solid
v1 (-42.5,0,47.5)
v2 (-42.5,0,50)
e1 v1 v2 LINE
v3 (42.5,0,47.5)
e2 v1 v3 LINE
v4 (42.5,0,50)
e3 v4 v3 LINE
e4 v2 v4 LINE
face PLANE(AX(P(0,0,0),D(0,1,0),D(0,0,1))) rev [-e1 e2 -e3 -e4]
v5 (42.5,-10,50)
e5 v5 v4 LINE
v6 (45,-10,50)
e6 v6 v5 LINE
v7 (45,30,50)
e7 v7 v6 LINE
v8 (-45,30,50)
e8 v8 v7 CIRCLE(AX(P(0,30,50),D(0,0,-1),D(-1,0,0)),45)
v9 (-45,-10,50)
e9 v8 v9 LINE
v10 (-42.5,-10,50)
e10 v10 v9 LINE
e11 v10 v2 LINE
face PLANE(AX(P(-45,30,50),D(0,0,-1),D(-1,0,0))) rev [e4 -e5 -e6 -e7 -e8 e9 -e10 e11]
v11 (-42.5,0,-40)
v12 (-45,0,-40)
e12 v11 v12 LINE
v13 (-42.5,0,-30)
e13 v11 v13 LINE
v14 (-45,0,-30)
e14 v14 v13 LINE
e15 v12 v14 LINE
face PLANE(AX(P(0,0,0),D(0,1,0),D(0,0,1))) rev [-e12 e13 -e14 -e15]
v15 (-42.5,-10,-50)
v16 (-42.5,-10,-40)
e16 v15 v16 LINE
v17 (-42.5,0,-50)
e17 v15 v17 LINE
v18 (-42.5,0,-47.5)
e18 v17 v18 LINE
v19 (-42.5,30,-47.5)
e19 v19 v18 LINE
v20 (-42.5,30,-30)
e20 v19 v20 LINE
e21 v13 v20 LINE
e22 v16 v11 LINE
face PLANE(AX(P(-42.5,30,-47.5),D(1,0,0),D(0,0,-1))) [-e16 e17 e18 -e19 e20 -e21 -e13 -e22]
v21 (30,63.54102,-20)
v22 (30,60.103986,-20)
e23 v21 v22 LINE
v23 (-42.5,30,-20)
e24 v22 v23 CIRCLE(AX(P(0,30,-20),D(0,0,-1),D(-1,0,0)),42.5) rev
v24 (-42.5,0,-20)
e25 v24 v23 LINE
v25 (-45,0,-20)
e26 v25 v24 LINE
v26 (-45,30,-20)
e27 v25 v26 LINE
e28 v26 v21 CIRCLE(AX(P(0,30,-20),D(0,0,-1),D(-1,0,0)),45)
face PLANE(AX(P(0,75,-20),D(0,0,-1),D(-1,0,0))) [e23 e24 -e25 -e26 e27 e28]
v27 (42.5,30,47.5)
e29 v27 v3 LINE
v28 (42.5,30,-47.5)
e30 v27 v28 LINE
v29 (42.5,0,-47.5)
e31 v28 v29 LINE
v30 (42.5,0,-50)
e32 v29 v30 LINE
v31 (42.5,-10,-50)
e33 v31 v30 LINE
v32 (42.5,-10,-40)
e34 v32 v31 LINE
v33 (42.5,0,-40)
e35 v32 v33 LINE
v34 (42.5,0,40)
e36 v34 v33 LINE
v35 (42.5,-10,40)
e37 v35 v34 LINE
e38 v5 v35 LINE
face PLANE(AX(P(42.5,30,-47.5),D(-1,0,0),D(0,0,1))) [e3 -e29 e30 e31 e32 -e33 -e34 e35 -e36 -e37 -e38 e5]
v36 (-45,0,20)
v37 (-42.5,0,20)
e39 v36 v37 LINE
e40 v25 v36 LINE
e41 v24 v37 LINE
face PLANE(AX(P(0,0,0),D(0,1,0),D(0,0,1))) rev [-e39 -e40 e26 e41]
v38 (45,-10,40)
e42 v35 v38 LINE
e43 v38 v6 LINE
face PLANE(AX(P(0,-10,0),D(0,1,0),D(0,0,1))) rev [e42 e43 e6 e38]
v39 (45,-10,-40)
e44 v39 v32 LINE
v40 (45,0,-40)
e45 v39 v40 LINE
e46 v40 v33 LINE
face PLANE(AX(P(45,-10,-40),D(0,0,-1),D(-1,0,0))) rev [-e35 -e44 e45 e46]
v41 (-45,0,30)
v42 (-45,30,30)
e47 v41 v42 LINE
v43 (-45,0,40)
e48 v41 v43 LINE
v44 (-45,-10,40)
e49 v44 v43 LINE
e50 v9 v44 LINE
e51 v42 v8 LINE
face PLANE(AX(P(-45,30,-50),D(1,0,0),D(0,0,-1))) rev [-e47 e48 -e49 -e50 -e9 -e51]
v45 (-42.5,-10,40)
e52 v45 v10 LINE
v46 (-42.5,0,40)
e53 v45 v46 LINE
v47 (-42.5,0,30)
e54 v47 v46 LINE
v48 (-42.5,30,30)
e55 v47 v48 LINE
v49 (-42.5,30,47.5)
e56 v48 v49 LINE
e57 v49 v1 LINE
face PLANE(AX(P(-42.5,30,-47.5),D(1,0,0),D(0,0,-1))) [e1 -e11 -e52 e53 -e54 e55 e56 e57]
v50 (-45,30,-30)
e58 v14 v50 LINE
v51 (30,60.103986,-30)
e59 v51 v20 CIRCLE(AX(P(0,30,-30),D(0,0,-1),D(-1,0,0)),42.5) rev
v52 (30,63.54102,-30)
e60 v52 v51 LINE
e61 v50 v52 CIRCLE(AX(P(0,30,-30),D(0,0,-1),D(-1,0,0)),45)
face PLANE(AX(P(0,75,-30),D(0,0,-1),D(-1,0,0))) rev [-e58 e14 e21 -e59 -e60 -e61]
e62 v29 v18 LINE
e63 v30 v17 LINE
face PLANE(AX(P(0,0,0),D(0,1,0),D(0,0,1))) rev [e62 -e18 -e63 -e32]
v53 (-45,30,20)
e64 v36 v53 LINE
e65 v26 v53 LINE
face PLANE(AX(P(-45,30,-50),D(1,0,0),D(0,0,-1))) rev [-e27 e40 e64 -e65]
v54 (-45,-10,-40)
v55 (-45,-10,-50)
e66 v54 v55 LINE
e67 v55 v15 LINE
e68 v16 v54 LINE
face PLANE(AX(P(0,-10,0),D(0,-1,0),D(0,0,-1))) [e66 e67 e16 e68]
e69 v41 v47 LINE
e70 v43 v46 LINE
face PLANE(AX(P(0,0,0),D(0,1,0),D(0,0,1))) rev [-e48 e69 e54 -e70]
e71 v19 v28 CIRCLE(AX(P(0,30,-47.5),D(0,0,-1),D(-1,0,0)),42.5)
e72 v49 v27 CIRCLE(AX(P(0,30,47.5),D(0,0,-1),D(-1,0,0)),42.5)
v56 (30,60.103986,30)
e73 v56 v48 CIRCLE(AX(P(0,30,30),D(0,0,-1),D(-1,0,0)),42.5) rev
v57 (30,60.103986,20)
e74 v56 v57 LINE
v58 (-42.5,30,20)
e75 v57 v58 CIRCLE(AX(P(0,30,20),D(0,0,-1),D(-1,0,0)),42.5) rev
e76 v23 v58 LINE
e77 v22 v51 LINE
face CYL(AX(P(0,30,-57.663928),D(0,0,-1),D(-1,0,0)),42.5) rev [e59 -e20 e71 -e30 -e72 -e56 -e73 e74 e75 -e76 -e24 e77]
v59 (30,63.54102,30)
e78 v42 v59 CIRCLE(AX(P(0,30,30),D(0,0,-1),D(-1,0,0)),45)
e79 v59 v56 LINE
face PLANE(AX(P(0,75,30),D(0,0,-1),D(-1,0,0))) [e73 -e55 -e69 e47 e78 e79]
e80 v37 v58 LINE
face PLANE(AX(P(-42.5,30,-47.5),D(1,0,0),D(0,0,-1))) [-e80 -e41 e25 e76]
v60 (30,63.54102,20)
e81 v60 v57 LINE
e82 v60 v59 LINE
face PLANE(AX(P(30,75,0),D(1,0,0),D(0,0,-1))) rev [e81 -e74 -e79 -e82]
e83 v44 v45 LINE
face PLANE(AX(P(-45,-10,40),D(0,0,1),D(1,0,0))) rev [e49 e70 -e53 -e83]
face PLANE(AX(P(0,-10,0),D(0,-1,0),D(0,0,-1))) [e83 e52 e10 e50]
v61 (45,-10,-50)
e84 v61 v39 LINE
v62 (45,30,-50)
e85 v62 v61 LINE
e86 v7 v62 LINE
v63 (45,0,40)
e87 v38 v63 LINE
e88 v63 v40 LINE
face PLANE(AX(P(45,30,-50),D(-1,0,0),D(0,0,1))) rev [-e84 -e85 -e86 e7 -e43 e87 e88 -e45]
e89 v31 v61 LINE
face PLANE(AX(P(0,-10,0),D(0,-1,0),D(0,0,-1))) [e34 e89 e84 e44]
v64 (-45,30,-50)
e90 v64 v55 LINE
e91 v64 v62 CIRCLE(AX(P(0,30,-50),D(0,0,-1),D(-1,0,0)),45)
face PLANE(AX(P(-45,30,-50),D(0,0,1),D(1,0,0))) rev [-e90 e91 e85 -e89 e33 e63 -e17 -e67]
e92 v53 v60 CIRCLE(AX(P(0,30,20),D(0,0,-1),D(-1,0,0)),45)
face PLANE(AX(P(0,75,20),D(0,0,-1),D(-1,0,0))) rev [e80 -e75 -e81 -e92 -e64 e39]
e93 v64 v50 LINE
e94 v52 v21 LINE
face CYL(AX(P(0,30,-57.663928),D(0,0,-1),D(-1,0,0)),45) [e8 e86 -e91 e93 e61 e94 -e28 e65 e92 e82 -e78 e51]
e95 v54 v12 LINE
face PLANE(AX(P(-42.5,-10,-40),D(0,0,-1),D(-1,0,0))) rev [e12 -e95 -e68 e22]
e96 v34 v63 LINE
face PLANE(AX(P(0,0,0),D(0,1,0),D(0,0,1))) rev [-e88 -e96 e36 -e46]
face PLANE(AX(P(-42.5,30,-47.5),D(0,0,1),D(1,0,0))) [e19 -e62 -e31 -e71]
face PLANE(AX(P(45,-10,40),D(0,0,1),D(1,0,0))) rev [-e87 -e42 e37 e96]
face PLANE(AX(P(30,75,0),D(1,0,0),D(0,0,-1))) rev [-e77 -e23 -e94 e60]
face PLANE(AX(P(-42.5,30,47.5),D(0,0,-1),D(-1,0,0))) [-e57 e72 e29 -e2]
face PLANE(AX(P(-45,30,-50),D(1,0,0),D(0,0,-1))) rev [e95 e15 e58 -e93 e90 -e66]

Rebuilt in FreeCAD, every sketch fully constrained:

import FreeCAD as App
import Part
import Sketcher
Q = App.Units.Quantity


def add_polygon(sketch, points):
    """Adds a closed chain of lines whose ends are joined by coincident constraints."""
    first, n = sketch.GeometryCount, len(points)
    for a, b in zip(points, points[1:] + points[:1]):
        sketch.addGeometry(Part.LineSegment(App.Vector(*a, 0), App.Vector(*b, 0)), False)
    for i in range(n):
        sketch.addConstraint(Sketcher.Constraint("Coincident", first + i, 2, first + (i + 1) % n, 1))

doc = App.newDocument("Part")
params = doc.addObject("Spreadsheet::Sheet", "Params")
for row, (alias, value) in enumerate([
    ("sketch1_width", "90 mm"),
    ("sketch1_width2", "85 mm"),
    ("sketch1_height", "100 mm"),
    ("sketch1_height2", "95 mm"),
    ("pad1_length", "30 mm"),
    ("sketch2_height", "10 mm"),
    ("sketch2_width", "2.5 mm"),
    ("pad2_length", "10 mm"),
    ("sketch3_width", "45 mm"),
    ("sketch3_height", "100 mm"),
    ("sketch3_height2", "95 mm"),
    ("sketch3_width2", "42.5 mm"),
    ("revolution_angle", "180 deg"),
    ("sketch4_width", "120 mm"),
    ("sketch4_width2", "110 mm"),
    ("sketch4_height", "60 mm"),
    ("sketch4_height2", "10 mm"),
], start=1):
    params.set(f"A{row}", alias)
    params.set(f"B{row}", "=" + value)
    params.setAlias(f"B{row}", alias)

body = doc.addObject("PartDesign::Body", "Body")

# Sketch on XZ plane
sketch1 = body.newObject("Sketcher::SketchObject", "Sketch")
sketch1.AttachmentSupport = (doc.getObject("XZ_Plane"), [""])
sketch1.MapMode = "FlatFace"
add_polygon(sketch1, [(-45, -50), (-45, 50), (45, 50), (45, -50)])  # lines 0-3
add_polygon(sketch1, [(42, 48), (-42, 48), (-42, -48), (42, -48)])  # lines 4-7
sketch1.addConstraint([
    Sketcher.Constraint("Vertical", 0),
    Sketcher.Constraint("Horizontal", 1),
    Sketcher.Constraint("Vertical", 2),
    Sketcher.Constraint("Horizontal", 3),
    Sketcher.Constraint("Horizontal", 4),
    Sketcher.Constraint("Vertical", 5),
    Sketcher.Constraint("Horizontal", 6),
    Sketcher.Constraint("Vertical", 7),
    Sketcher.Constraint("Symmetric", 0, 2, 2, 2, -1, 1),
    Sketcher.Constraint("Symmetric", 4, 2, 6, 2, -1, 1),
    Sketcher.Constraint("DistanceX", 1, 1, 1, 2, Q("90 mm")),
    Sketcher.Constraint("DistanceX", 4, 2, 4, 1, Q("85 mm")),
    Sketcher.Constraint("DistanceY", 0, 1, 0, 2, Q("100 mm")),
    Sketcher.Constraint("DistanceY", 5, 2, 5, 1, Q("95 mm")),
])
sketch1.setExpression("Constraints[18]", "Params.sketch1_width")
sketch1.setExpression("Constraints[19]", "Params.sketch1_width2")
sketch1.setExpression("Constraints[20]", "Params.sketch1_height")
sketch1.setExpression("Constraints[21]", "Params.sketch1_height2")
pad1 = body.newObject("PartDesign::Pad", "Pad")
pad1.Profile = sketch1
pad1.setExpression("Length", "Params.pad1_length")
pad1.Reversed = True

# Sketch on XZ plane
sketch2 = body.newObject("Sketcher::SketchObject", "Sketch001")
sketch2.AttachmentSupport = (doc.getObject("XZ_Plane"), [""])
sketch2.MapMode = "FlatFace"
add_polygon(sketch2, [(-42.5, 50), (-45, 50), (-45, 40), (-42.5, 40)])  # lines 0-3
add_polygon(sketch2, [(42.5, 50), (42.5, 40), (45, 40), (45, 50)])  # lines 4-7
add_polygon(sketch2, [(-42.5, -40), (-45, -40), (-45, -50), (-42.5, -50)])  # lines 8-11
add_polygon(sketch2, [(42.5, -40), (42.5, -50), (45, -50), (45, -40)])  # lines 12-15
sketch2.addConstraint([
    Sketcher.Constraint("Horizontal", 0),
    Sketcher.Constraint("Vertical", 1),
    Sketcher.Constraint("Horizontal", 2),
    Sketcher.Constraint("Vertical", 3),
    Sketcher.Constraint("Vertical", 4),
    Sketcher.Constraint("Horizontal", 5),
    Sketcher.Constraint("Vertical", 6),
    Sketcher.Constraint("Horizontal", 7),
    Sketcher.Constraint("Horizontal", 8),
    Sketcher.Constraint("Vertical", 9),
    Sketcher.Constraint("Horizontal", 10),
    Sketcher.Constraint("Vertical", 11),
    Sketcher.Constraint("Vertical", 12),
    Sketcher.Constraint("Horizontal", 13),
    Sketcher.Constraint("Vertical", 14),
    Sketcher.Constraint("Horizontal", 15),
    Sketcher.Constraint("Symmetric", 5, 2, 8, 2, -1, 1),
    Sketcher.Constraint("Symmetric", 7, 2, 10, 2, -1, 1),
    Sketcher.Constraint("Symmetric", 3, 2, 12, 2, -1, 1),
    Sketcher.Constraint("Symmetric", 1, 2, 14, 2, -1, 1),
    Sketcher.Constraint("Symmetric", 2, 2, 4, 2, -2),
    Sketcher.Constraint("Symmetric", 0, 2, 6, 2, -2),
    Sketcher.Constraint("DistanceY", 1, 2, 1, 1, Q("10 mm")),
    Sketcher.Constraint("DistanceX", 0, 2, 0, 1, Q("2.5 mm")),
    Sketcher.Constraint("DistanceX", 0, 2, -1, 1, Q("45 mm")),
    Sketcher.Constraint("DistanceY", -1, 1, 0, 2, Q("50 mm")),
])
sketch2.setExpression("Constraints[38]", "Params.sketch2_height")
sketch2.setExpression("Constraints[39]", "Params.sketch2_width")
pad2 = body.newObject("PartDesign::Pad", "Pad001")
pad2.Profile = sketch2
pad2.setExpression("Length", "Params.pad2_length")

# Sketch on XZ plane
sketch3 = body.newObject("Sketcher::SketchObject", "Sketch002")
sketch3.AttachmentSupport = (doc.getObject("XZ_Plane"), [""])
sketch3.MapMode = "FlatFace"
sketch3.AttachmentOffset = App.Placement(App.Vector(0, 0, -30), App.Rotation())
add_polygon(sketch3, [(45, 50), (45, -50), (0, -50), (0, -47.5), (42.5, -47.5), (42.5, 47.5), (0, 47.5), (0, 50)])  # lines 0-7
sketch3.addConstraint([
    Sketcher.Constraint("Vertical", 0),
    Sketcher.Constraint("Horizontal", 1),
    Sketcher.Constraint("Vertical", 2),
    Sketcher.Constraint("Horizontal", 3),
    Sketcher.Constraint("Vertical", 4),
    Sketcher.Constraint("Horizontal", 5),
    Sketcher.Constraint("Vertical", 6),
    Sketcher.Constraint("Horizontal", 7),
    Sketcher.Constraint("Symmetric", 2, 2, 5, 2, -1, 1),
    Sketcher.Constraint("Symmetric", 1, 2, 6, 2, -1),
    Sketcher.Constraint("DistanceX", 1, 2, 1, 1, Q("45 mm")),
    Sketcher.Constraint("DistanceY", 0, 2, 0, 1, Q("100 mm")),
    Sketcher.Constraint("DistanceY", 4, 1, 4, 2, Q("95 mm")),
    Sketcher.Constraint("DistanceX", 3, 1, 3, 2, Q("42.5 mm")),
])
sketch3.setExpression("Constraints[18]", "Params.sketch3_width")
sketch3.setExpression("Constraints[19]", "Params.sketch3_height")
sketch3.setExpression("Constraints[20]", "Params.sketch3_height2")
sketch3.setExpression("Constraints[21]", "Params.sketch3_width2")
revolution = body.newObject("PartDesign::Revolution", "Revolution")
revolution.Profile = sketch3
revolution.ReferenceAxis = (sketch3, ["V_Axis"])
revolution.setExpression("Angle", "Params.revolution_angle")

# Sketch on XZ plane
sketch4 = body.newObject("Sketcher::SketchObject", "Sketch003")
sketch4.AttachmentSupport = (doc.getObject("XZ_Plane"), [""])
sketch4.MapMode = "FlatFace"
add_polygon(sketch4, [(30, -30), (-90, -30), (-90, 30), (30, 30), (30, 20), (-80, 20), (-80, -20), (30, -20)])  # lines 0-7
sketch4.addConstraint([
    Sketcher.Constraint("Horizontal", 0),
    Sketcher.Constraint("Vertical", 1),
    Sketcher.Constraint("Horizontal", 2),
    Sketcher.Constraint("Vertical", 3),
    Sketcher.Constraint("Horizontal", 4),
    Sketcher.Constraint("Vertical", 5),
    Sketcher.Constraint("Horizontal", 6),
    Sketcher.Constraint("Vertical", 7),
    Sketcher.Constraint("Symmetric", 3, 2, 6, 2, -1),
    Sketcher.Constraint("Equal", 3, 7),
    Sketcher.Constraint("DistanceX", 0, 2, 0, 1, Q("120 mm")),
    Sketcher.Constraint("DistanceX", 4, 2, 4, 1, Q("110 mm")),
    Sketcher.Constraint("DistanceY", 1, 1, 1, 2, Q("60 mm")),
    Sketcher.Constraint("DistanceY", 3, 2, 3, 1, Q("10 mm")),
    Sketcher.Constraint("DistanceX", 0, 2, -1, 1, Q("90 mm")),
])
sketch4.setExpression("Constraints[18]", "Params.sketch4_width")
sketch4.setExpression("Constraints[19]", "Params.sketch4_width2")
sketch4.setExpression("Constraints[20]", "Params.sketch4_height")
sketch4.setExpression("Constraints[21]", "Params.sketch4_height2")
pocket1 = body.newObject("PartDesign::Pocket", "Pocket")
pocket1.Profile = sketch4
pocket1.Type = "ThroughAll"

doc.recompute()
